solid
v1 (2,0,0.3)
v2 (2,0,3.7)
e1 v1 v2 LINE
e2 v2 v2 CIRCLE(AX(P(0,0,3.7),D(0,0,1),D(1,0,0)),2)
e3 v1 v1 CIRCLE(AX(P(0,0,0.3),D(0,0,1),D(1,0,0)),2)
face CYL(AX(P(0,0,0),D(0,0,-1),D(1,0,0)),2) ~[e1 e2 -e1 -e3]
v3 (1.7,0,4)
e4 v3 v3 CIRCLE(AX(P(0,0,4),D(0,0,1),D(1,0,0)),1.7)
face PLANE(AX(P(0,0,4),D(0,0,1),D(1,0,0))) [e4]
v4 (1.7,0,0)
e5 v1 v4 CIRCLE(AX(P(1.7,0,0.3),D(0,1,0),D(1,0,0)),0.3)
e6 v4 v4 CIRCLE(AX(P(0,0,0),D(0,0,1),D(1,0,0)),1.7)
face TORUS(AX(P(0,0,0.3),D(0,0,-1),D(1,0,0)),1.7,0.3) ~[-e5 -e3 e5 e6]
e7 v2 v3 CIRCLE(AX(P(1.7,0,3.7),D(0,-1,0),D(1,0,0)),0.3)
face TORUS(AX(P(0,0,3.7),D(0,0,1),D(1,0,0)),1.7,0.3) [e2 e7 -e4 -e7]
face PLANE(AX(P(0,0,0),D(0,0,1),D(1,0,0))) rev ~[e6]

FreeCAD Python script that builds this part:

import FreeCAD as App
import Part
import Sketcher

V = App.Vector


def edges_at(feature, points):
    """Names of the edges that pass closest to the given points."""
    edges = feature.Shape.Edges
    near = lambda p: min(range(len(edges)), key=lambda i: edges[i].distToShape(Part.Vertex(*p))[0])
    return sorted({f"Edge{near(p) + 1}" for p in points})

doc = App.newDocument("Part")
params = doc.addObject("Spreadsheet::Sheet", "Params")
for row, (alias, value) in enumerate([
    ("sketch1_diameter", "4 mm"),
    ("pad1_length", "4 mm"),
    ("fillet_radius", "0.3 mm"),
], start=1):
    params.set(f"A{row}", alias)
    params.set(f"B{row}", "=" + value)
    params.setAlias(f"B{row}", alias)

body = doc.addObject("PartDesign::Body", "Body")

# Sketch on XY plane
sketch1 = body.newObject("Sketcher::SketchObject", "Sketch")
sketch1.AttachmentSupport = (doc.getObject("XY_Plane"), [""])
sketch1.MapMode = "FlatFace"
sketch1.addGeometry(Part.Circle(V(0, 0, 0), V(0, 0, 1), 2), False)
sketch1.addConstraint([
    Sketcher.Constraint("Coincident", 0, 3, -1, 1),
    Sketcher.Constraint("Diameter", 0, 4.0),
])
sketch1.setExpression("Constraints[1]", "Params.sketch1_diameter")
pad1 = body.newObject("PartDesign::Pad", "Pad")
pad1.Profile = sketch1
pad1.setExpression("Length", "Params.pad1_length")
doc.recompute()

fillet = body.newObject("PartDesign::Fillet", "Fillet")
fillet.Base = (pad1, edges_at(pad1, [(-2, 0, 4), (-2, 0, 0)]))
fillet.setExpression("Radius", "Params.fillet_radius")

doc.recompute()
